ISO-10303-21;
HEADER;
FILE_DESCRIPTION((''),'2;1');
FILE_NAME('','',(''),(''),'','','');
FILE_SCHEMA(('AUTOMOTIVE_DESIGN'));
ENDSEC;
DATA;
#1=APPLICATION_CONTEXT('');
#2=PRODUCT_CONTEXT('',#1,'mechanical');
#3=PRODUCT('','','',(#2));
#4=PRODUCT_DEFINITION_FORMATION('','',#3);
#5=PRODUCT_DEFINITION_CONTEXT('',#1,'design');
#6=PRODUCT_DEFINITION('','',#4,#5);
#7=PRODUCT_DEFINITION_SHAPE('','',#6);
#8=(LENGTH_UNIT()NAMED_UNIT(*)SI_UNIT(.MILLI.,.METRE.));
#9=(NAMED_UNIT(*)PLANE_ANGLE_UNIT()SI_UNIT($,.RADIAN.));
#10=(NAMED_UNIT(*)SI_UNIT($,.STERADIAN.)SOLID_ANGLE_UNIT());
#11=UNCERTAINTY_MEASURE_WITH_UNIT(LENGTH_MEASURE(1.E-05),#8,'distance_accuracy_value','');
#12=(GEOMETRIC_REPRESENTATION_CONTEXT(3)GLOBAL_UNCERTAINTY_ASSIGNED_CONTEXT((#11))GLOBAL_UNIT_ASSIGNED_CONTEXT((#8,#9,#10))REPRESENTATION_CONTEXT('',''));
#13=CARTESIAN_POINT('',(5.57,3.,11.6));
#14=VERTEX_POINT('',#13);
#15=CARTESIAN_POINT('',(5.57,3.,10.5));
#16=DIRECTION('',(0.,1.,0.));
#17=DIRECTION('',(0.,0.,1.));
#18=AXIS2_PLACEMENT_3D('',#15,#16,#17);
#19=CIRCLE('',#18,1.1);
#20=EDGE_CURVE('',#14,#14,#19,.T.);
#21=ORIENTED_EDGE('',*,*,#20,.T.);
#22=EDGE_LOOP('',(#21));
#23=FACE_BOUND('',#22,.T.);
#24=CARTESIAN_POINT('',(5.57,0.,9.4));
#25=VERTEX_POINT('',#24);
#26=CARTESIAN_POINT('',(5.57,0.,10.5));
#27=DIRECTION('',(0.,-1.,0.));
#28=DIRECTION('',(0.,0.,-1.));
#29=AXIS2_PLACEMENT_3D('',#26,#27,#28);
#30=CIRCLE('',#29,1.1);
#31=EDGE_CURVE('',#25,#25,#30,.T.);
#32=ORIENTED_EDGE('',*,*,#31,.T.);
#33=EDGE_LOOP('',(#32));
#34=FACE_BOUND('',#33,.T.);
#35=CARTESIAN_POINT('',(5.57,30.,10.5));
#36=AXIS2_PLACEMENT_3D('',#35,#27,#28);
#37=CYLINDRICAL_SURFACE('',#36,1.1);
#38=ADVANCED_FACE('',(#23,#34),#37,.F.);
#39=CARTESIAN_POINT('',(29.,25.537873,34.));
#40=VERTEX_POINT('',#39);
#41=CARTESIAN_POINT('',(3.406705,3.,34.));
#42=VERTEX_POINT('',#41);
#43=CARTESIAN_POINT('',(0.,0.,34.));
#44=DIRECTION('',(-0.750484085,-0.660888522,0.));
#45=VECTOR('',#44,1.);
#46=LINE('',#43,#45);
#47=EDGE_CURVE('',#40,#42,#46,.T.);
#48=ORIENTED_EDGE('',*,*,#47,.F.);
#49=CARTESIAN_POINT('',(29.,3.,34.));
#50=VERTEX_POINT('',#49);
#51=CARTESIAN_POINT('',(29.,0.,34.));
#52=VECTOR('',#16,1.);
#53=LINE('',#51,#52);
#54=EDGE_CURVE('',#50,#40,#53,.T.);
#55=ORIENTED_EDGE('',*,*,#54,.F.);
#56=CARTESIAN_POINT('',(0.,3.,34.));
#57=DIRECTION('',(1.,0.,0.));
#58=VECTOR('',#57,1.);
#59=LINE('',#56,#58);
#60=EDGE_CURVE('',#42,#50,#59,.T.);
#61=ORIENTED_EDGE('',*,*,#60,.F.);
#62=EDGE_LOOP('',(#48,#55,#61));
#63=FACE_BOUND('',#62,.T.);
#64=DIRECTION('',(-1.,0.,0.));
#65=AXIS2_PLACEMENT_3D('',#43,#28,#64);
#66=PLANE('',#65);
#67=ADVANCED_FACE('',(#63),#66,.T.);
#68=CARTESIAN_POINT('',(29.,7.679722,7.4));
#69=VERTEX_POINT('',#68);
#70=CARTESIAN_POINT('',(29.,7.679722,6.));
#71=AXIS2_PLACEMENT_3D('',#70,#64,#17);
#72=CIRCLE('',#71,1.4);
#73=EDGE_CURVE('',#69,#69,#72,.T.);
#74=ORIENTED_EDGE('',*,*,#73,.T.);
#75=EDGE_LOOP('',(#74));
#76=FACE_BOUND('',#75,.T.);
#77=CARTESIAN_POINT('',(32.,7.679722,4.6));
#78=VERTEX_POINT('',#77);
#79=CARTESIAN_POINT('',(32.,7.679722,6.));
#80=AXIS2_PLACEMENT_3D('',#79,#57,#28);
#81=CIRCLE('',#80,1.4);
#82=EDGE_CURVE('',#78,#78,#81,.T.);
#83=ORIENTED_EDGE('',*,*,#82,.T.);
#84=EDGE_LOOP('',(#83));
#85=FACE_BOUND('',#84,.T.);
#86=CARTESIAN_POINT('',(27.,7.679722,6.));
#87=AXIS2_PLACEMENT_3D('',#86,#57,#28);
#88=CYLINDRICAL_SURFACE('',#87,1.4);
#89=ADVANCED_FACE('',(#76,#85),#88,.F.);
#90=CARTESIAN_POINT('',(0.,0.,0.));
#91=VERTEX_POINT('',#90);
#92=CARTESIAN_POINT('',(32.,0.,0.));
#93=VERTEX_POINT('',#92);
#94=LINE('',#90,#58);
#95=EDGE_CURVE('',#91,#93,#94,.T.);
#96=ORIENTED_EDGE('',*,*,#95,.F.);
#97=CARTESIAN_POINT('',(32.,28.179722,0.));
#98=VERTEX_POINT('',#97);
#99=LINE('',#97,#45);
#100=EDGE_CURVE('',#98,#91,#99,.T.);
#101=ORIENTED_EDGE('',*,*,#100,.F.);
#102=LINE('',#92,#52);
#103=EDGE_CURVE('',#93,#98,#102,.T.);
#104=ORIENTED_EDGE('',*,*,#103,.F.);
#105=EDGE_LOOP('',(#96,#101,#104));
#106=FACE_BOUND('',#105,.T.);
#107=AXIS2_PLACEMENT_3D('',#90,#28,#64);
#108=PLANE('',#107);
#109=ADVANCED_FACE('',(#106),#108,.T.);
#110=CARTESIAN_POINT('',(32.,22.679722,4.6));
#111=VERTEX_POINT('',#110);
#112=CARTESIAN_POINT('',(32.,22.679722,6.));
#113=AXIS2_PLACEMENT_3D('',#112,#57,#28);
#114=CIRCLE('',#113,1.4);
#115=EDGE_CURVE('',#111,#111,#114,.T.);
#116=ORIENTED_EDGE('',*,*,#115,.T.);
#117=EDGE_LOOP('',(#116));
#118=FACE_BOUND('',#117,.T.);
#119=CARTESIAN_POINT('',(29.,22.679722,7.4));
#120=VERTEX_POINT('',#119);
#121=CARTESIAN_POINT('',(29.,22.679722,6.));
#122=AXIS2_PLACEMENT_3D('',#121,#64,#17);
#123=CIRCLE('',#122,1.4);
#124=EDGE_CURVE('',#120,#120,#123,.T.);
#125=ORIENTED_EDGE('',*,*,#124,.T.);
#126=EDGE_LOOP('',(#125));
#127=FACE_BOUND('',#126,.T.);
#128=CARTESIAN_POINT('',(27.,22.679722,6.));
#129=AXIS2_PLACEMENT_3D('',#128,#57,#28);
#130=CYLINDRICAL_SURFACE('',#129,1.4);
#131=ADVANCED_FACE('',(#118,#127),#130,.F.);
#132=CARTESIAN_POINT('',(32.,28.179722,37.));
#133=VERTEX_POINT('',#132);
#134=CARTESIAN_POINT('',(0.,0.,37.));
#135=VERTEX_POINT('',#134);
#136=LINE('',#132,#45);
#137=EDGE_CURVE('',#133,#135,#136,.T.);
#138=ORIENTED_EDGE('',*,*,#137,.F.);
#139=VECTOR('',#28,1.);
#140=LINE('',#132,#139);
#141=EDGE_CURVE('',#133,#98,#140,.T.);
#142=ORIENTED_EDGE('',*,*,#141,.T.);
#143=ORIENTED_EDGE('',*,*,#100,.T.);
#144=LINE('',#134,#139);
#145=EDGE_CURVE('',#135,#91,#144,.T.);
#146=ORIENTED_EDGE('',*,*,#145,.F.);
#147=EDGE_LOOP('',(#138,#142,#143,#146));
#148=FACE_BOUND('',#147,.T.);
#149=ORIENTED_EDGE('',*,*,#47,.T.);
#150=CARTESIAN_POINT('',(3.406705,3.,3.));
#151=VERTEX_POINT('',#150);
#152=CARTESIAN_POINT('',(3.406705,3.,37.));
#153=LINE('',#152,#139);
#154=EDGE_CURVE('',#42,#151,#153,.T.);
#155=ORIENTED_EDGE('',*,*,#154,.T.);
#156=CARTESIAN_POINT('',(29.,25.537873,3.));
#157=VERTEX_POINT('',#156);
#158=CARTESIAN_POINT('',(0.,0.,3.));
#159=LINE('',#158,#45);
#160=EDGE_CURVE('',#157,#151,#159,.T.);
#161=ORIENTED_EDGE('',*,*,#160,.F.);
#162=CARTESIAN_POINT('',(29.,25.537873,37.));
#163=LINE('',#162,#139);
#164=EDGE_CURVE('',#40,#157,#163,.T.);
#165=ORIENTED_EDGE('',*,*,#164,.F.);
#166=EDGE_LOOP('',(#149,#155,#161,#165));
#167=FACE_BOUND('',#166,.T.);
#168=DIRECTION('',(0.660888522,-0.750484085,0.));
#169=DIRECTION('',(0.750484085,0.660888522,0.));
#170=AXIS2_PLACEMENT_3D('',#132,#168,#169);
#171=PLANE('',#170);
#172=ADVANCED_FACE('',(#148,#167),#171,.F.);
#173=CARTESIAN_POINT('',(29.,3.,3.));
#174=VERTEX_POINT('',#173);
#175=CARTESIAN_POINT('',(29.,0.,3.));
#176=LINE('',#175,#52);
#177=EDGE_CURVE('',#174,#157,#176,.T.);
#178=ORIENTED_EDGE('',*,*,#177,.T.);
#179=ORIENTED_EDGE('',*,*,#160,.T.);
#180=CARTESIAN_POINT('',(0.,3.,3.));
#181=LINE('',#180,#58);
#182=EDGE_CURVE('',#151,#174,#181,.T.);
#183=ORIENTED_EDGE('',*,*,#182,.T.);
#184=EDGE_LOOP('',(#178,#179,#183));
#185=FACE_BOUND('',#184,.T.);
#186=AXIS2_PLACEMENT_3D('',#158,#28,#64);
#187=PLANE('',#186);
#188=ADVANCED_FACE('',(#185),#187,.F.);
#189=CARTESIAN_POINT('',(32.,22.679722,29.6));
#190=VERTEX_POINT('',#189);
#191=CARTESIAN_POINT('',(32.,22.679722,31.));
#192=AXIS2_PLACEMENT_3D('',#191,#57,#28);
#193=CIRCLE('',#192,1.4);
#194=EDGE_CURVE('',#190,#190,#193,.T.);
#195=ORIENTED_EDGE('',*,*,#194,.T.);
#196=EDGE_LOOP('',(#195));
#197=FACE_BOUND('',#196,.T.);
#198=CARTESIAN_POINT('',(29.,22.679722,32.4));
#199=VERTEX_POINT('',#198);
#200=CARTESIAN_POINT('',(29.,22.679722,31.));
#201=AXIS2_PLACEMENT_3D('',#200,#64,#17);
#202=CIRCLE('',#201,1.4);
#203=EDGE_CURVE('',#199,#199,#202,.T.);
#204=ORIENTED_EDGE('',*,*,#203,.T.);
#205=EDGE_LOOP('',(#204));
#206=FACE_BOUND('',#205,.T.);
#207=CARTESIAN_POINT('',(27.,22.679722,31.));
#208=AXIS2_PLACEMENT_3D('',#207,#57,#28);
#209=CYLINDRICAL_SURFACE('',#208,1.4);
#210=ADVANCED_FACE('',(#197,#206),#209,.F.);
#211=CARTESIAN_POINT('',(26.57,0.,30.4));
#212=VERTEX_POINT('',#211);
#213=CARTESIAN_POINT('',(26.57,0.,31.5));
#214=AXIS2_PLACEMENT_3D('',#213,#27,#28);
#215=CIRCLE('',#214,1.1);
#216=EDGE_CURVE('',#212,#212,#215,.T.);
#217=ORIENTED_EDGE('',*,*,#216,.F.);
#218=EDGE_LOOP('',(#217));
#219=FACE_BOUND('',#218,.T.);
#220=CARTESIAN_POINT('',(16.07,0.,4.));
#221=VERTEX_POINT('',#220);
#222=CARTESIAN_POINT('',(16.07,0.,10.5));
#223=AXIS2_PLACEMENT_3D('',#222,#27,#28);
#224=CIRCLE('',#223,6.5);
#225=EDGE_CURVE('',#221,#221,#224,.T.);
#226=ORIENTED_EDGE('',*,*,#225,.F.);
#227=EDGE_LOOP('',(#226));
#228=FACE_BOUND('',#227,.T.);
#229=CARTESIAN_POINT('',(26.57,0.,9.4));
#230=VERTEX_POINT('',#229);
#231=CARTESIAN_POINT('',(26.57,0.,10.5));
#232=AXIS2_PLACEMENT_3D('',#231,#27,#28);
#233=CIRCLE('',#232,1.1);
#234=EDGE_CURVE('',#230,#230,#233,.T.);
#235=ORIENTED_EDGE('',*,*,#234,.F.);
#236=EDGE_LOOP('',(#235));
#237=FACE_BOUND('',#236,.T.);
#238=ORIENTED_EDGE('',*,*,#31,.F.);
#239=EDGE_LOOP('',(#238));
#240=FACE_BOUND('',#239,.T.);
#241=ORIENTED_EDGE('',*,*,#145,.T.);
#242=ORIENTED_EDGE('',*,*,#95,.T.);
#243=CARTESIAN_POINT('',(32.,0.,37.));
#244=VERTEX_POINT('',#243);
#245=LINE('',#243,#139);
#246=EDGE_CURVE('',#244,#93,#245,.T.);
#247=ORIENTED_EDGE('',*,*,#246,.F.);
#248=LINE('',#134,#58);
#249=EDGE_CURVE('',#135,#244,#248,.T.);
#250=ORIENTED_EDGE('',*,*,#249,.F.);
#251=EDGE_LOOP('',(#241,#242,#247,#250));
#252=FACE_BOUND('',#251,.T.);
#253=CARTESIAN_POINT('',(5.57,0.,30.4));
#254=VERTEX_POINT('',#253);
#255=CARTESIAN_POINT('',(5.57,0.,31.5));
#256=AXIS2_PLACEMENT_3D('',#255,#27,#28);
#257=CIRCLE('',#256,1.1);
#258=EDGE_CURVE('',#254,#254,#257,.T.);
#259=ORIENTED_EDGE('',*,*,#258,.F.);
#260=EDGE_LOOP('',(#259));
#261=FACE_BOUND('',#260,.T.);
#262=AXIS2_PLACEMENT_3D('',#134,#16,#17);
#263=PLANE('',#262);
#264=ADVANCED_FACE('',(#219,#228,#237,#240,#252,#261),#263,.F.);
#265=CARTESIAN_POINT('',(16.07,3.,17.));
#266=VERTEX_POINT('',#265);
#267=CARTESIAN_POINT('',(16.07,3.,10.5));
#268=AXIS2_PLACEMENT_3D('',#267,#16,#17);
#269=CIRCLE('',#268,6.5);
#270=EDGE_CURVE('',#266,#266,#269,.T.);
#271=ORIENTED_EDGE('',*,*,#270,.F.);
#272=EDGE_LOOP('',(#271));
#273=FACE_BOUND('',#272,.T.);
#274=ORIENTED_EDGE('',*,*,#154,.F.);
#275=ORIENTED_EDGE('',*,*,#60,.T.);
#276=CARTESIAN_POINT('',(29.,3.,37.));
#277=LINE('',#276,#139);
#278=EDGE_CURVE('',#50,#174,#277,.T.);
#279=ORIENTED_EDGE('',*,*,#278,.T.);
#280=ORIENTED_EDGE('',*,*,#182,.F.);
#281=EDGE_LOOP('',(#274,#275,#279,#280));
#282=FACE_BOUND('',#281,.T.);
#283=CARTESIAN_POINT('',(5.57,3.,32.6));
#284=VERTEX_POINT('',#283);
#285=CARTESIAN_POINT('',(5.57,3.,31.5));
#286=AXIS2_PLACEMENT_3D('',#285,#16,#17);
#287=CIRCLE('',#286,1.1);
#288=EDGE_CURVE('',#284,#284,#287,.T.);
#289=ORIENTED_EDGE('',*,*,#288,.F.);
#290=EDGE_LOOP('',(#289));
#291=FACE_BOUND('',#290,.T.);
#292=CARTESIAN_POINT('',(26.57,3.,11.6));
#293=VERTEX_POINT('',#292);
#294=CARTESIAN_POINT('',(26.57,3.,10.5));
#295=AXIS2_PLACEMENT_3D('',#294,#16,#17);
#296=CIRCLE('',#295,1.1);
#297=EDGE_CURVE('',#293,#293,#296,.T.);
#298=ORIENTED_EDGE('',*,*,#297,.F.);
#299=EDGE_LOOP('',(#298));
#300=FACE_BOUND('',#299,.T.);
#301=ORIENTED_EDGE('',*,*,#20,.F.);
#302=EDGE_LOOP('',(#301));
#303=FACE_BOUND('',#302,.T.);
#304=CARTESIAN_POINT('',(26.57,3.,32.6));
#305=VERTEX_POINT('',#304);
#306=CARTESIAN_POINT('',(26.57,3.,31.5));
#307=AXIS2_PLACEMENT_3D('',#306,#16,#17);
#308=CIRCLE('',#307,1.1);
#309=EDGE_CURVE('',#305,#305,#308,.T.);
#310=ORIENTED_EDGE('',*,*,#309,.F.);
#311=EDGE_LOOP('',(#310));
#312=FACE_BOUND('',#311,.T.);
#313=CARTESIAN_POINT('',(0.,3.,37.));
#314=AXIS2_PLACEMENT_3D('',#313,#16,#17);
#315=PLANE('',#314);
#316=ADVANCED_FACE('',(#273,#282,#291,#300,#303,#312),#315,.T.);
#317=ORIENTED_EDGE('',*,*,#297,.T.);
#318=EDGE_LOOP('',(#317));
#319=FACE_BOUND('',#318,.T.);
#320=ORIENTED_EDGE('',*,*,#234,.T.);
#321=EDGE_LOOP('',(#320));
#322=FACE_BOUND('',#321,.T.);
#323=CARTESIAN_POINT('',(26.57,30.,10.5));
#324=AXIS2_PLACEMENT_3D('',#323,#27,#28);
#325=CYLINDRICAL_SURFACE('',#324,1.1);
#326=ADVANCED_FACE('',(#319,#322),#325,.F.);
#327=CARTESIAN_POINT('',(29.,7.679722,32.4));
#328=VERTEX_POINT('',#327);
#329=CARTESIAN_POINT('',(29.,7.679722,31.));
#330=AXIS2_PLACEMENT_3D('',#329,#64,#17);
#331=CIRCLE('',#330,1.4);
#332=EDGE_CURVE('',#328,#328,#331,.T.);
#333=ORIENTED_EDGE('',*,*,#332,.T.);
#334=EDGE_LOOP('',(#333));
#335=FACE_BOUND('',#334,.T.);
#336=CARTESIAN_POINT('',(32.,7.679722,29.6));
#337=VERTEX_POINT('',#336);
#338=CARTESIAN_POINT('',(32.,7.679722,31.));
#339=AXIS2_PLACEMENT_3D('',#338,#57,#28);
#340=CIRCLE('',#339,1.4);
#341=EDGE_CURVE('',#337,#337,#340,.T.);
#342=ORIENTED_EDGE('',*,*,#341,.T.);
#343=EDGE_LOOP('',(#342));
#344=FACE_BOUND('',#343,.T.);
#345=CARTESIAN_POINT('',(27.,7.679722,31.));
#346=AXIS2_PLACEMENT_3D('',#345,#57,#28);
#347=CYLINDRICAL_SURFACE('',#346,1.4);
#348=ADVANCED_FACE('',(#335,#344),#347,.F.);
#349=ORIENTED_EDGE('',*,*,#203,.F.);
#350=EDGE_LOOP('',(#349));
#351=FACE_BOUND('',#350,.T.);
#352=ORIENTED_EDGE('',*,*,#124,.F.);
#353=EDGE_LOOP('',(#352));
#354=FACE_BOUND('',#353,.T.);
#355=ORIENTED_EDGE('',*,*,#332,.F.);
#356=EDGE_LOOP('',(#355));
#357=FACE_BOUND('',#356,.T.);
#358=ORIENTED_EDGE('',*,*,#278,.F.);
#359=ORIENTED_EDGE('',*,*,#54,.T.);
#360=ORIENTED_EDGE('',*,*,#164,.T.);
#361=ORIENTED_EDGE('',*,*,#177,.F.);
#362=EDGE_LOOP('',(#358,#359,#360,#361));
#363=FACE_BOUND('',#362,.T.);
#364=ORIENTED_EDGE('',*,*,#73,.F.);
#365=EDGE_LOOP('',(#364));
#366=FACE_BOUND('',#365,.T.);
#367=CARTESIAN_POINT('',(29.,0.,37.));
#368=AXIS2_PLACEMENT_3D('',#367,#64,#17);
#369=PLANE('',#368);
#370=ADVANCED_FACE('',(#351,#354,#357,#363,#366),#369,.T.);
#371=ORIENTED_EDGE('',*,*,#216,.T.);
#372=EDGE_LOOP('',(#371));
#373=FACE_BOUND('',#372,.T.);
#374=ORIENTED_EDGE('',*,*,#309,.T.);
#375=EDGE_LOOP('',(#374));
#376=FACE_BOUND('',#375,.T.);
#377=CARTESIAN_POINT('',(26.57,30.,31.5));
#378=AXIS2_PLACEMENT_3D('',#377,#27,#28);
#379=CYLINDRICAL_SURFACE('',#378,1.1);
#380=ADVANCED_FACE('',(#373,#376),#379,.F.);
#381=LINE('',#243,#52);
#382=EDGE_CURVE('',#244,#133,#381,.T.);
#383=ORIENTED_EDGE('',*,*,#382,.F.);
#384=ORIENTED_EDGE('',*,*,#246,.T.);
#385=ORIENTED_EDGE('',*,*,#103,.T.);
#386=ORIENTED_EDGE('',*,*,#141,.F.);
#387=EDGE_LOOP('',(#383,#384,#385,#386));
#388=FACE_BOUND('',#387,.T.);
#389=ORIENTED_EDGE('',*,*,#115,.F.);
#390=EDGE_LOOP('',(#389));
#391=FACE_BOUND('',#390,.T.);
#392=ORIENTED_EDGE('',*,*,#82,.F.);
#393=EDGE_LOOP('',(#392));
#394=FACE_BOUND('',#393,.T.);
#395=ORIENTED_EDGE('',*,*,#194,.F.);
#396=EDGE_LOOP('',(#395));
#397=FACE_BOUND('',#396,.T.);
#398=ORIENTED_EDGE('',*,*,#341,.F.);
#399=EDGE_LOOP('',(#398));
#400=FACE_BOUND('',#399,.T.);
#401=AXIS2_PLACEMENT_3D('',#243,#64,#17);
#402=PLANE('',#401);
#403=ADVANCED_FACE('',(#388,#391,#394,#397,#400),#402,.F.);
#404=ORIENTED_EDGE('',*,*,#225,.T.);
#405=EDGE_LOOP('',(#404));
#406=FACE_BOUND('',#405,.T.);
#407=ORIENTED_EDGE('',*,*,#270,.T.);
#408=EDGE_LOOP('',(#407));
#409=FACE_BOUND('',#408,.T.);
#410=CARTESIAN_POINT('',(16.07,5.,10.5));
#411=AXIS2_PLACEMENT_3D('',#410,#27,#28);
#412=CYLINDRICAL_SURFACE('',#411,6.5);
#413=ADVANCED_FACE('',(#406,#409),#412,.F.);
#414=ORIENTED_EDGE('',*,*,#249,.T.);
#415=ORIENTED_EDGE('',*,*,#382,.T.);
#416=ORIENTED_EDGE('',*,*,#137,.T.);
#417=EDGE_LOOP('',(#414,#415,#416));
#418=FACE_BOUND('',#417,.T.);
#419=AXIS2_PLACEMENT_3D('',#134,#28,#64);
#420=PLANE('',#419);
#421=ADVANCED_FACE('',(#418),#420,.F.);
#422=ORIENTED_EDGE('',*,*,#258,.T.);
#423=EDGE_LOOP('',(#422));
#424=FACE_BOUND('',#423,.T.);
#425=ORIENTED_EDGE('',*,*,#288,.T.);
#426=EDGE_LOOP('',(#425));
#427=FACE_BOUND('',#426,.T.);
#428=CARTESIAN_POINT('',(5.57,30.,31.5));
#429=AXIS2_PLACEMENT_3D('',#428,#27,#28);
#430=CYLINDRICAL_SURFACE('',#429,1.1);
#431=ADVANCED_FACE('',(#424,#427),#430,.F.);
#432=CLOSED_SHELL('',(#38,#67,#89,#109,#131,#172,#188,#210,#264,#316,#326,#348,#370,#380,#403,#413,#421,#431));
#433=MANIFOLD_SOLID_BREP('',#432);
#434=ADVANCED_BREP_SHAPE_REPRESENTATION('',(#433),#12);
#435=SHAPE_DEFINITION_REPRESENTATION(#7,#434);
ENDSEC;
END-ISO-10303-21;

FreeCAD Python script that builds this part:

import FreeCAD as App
import Part
import Sketcher


def faces_at(feature, points):
    """Names of the faces that lie closest to the given points."""
    faces = feature.Shape.Faces
    near = lambda p: min(range(len(faces)), key=lambda i: faces[i].distToShape(Part.Vertex(*p))[0])
    return sorted({f"Face{near(p) + 1}" for p in points})

doc = App.newDocument("Part")
body = doc.addObject("PartDesign::Body", "Body")

sketch1 = body.newObject("Sketcher::SketchObject", "Sketch")
sketch1.AttachmentSupport = (doc.getObject("XY_Plane"), [""])
sketch1.MapMode = "FlatFace"
sketch1.addGeometry([
    Part.LineSegment(App.Vector(0, 0, 0), App.Vector(32, 0, 0)),
    Part.LineSegment(App.Vector(32, 0, 0), App.Vector(32, 28, 0)),
    Part.LineSegment(App.Vector(32, 28, 0), App.Vector(0, 0, 0)),
], False)
sketch1.addConstraint([
    Sketcher.Constraint("Coincident", 0, 2, 1, 1),
    Sketcher.Constraint("Coincident", 1, 2, 2, 1),
    Sketcher.Constraint("Coincident", 2, 2, 0, 1),
    Sketcher.Constraint("Horizontal", 0),
    Sketcher.Constraint("Vertical", 1),
    Sketcher.Constraint("Coincident", 2, 2, -1, 1),
    Sketcher.Constraint("DistanceX", 0, 1, 0, 2, 32.0),
    Sketcher.Constraint("DistanceY", 1, 1, 1, 2, 28.179722),
])
pad1 = body.newObject("PartDesign::Pad", "Pad")
pad1.Profile = sketch1
pad1.Length = 37
doc.recompute()

thickness = body.newObject("PartDesign::Thickness", "Thickness")
thickness.Base = (pad1, faces_at(pad1, [(16, 14.09, 18.5)]))
thickness.Value = 3
thickness.Reversed = True
thickness.Join = "Intersection"

sketch2 = body.newObject("Sketcher::SketchObject", "Sketch001")
sketch2.AttachmentSupport = (doc.getObject("XZ_Plane"), [""])
sketch2.MapMode = "FlatFace"
sketch2.addGeometry([
    Part.Circle(App.Vector(26.6, 10.5, 0), App.Vector(0, 0, 1), 1.1),
    Part.Circle(App.Vector(5.6, 10.5, 0), App.Vector(0, 0, 1), 1.1),
    Part.Circle(App.Vector(5.6, 31.5, 0), App.Vector(0, 0, 1), 1.1),
    Part.Circle(App.Vector(26.6, 31.5, 0), App.Vector(0, 0, 1), 1.1),
], False)
sketch2.addConstraint([
    Sketcher.Constraint("Equal", 0, 1),
    Sketcher.Constraint("Equal", 1, 2),
    Sketcher.Constraint("Equal", 2, 3),
    Sketcher.Constraint("Horizontal", 0, 3, 1, 3),
    Sketcher.Constraint("Horizontal", 2, 3, 3, 3),
    Sketcher.Constraint("Vertical", 1, 3, 2, 3),
    Sketcher.Constraint("Vertical", 0, 3, 3, 3),
    Sketcher.Constraint("Diameter", 0, 2.2),
    Sketcher.Constraint("DistanceX", 1, 3, 0, 3, 21.0),
    Sketcher.Constraint("DistanceY", 1, 3, 2, 3, 21.0),
    Sketcher.Constraint("DistanceY", -1, 1, 0, 3, 10.5),
    Sketcher.Constraint("DistanceX", -1, 1, 0, 3, 26.57),
])
pocket1 = body.newObject("PartDesign::Pocket", "Pocket")
pocket1.Profile = sketch2
pocket1.Length = 30

sketch3 = body.newObject("Sketcher::SketchObject", "Sketch002")
sketch3.AttachmentSupport = (doc.getObject("XZ_Plane"), [""])
sketch3.MapMode = "FlatFace"
sketch3.addGeometry(Part.Circle(App.Vector(16, 10, 0), App.Vector(0, 0, 1), 6), False)
sketch3.addConstraint([
    Sketcher.Constraint("Diameter", 0, 13.0),
    Sketcher.Constraint("DistanceY", -1, 1, 0, 3, 10.5),
    Sketcher.Constraint("DistanceX", -1, 1, 0, 3, 16.07),
])
pocket2 = body.newObject("PartDesign::Pocket", "Pocket001")
pocket2.Profile = sketch3
pocket2.Length = 5

sketch4 = body.newObject("Sketcher::SketchObject", "Sketch003")
sketch4.AttachmentSupport = (doc.getObject("YZ_Plane"), [""])
sketch4.MapMode = "FlatFace"
sketch4.AttachmentOffset = App.Placement(App.Vector(0, 0, 32), App.Rotation())
sketch4.addGeometry([
    Part.Circle(App.Vector(22.7, 6, 0), App.Vector(0, 0, 1), 1.4),
    Part.Circle(App.Vector(22.7, 31, 0), App.Vector(0, 0, 1), 1.4),
    Part.Circle(App.Vector(7.7, 31, 0), App.Vector(0, 0, 1), 1.4),
    Part.Circle(App.Vector(7.7, 6, 0), App.Vector(0, 0, 1), 1.4),
], False)
sketch4.addConstraint([
    Sketcher.Constraint("Equal", 0, 1),
    Sketcher.Constraint("Equal", 1, 2),
    Sketcher.Constraint("Equal", 2, 3),
    Sketcher.Constraint("Horizontal", 1, 3, 2, 3),
    Sketcher.Constraint("Horizontal", 0, 3, 3, 3),
    Sketcher.Constraint("Vertical", 0, 3, 1, 3),
    Sketcher.Constraint("Vertical", 2, 3, 3, 3),
    Sketcher.Constraint("Diameter", 0, 2.8),
    Sketcher.Constraint("DistanceY", -1, 1, 0, 3, 6.0),
    Sketcher.Constraint("DistanceY", -1, 1, 1, 3, 31.0),
    Sketcher.Constraint("DistanceX", 2, 3, 1, 3, 15.0),
    Sketcher.Constraint("DistanceX", -1, 1, 0, 3, 22.679722),
])
pocket3 = body.newObject("PartDesign::Pocket", "Pocket002")
pocket3.Profile = sketch4
pocket3.Length = 5

doc.recompute()
